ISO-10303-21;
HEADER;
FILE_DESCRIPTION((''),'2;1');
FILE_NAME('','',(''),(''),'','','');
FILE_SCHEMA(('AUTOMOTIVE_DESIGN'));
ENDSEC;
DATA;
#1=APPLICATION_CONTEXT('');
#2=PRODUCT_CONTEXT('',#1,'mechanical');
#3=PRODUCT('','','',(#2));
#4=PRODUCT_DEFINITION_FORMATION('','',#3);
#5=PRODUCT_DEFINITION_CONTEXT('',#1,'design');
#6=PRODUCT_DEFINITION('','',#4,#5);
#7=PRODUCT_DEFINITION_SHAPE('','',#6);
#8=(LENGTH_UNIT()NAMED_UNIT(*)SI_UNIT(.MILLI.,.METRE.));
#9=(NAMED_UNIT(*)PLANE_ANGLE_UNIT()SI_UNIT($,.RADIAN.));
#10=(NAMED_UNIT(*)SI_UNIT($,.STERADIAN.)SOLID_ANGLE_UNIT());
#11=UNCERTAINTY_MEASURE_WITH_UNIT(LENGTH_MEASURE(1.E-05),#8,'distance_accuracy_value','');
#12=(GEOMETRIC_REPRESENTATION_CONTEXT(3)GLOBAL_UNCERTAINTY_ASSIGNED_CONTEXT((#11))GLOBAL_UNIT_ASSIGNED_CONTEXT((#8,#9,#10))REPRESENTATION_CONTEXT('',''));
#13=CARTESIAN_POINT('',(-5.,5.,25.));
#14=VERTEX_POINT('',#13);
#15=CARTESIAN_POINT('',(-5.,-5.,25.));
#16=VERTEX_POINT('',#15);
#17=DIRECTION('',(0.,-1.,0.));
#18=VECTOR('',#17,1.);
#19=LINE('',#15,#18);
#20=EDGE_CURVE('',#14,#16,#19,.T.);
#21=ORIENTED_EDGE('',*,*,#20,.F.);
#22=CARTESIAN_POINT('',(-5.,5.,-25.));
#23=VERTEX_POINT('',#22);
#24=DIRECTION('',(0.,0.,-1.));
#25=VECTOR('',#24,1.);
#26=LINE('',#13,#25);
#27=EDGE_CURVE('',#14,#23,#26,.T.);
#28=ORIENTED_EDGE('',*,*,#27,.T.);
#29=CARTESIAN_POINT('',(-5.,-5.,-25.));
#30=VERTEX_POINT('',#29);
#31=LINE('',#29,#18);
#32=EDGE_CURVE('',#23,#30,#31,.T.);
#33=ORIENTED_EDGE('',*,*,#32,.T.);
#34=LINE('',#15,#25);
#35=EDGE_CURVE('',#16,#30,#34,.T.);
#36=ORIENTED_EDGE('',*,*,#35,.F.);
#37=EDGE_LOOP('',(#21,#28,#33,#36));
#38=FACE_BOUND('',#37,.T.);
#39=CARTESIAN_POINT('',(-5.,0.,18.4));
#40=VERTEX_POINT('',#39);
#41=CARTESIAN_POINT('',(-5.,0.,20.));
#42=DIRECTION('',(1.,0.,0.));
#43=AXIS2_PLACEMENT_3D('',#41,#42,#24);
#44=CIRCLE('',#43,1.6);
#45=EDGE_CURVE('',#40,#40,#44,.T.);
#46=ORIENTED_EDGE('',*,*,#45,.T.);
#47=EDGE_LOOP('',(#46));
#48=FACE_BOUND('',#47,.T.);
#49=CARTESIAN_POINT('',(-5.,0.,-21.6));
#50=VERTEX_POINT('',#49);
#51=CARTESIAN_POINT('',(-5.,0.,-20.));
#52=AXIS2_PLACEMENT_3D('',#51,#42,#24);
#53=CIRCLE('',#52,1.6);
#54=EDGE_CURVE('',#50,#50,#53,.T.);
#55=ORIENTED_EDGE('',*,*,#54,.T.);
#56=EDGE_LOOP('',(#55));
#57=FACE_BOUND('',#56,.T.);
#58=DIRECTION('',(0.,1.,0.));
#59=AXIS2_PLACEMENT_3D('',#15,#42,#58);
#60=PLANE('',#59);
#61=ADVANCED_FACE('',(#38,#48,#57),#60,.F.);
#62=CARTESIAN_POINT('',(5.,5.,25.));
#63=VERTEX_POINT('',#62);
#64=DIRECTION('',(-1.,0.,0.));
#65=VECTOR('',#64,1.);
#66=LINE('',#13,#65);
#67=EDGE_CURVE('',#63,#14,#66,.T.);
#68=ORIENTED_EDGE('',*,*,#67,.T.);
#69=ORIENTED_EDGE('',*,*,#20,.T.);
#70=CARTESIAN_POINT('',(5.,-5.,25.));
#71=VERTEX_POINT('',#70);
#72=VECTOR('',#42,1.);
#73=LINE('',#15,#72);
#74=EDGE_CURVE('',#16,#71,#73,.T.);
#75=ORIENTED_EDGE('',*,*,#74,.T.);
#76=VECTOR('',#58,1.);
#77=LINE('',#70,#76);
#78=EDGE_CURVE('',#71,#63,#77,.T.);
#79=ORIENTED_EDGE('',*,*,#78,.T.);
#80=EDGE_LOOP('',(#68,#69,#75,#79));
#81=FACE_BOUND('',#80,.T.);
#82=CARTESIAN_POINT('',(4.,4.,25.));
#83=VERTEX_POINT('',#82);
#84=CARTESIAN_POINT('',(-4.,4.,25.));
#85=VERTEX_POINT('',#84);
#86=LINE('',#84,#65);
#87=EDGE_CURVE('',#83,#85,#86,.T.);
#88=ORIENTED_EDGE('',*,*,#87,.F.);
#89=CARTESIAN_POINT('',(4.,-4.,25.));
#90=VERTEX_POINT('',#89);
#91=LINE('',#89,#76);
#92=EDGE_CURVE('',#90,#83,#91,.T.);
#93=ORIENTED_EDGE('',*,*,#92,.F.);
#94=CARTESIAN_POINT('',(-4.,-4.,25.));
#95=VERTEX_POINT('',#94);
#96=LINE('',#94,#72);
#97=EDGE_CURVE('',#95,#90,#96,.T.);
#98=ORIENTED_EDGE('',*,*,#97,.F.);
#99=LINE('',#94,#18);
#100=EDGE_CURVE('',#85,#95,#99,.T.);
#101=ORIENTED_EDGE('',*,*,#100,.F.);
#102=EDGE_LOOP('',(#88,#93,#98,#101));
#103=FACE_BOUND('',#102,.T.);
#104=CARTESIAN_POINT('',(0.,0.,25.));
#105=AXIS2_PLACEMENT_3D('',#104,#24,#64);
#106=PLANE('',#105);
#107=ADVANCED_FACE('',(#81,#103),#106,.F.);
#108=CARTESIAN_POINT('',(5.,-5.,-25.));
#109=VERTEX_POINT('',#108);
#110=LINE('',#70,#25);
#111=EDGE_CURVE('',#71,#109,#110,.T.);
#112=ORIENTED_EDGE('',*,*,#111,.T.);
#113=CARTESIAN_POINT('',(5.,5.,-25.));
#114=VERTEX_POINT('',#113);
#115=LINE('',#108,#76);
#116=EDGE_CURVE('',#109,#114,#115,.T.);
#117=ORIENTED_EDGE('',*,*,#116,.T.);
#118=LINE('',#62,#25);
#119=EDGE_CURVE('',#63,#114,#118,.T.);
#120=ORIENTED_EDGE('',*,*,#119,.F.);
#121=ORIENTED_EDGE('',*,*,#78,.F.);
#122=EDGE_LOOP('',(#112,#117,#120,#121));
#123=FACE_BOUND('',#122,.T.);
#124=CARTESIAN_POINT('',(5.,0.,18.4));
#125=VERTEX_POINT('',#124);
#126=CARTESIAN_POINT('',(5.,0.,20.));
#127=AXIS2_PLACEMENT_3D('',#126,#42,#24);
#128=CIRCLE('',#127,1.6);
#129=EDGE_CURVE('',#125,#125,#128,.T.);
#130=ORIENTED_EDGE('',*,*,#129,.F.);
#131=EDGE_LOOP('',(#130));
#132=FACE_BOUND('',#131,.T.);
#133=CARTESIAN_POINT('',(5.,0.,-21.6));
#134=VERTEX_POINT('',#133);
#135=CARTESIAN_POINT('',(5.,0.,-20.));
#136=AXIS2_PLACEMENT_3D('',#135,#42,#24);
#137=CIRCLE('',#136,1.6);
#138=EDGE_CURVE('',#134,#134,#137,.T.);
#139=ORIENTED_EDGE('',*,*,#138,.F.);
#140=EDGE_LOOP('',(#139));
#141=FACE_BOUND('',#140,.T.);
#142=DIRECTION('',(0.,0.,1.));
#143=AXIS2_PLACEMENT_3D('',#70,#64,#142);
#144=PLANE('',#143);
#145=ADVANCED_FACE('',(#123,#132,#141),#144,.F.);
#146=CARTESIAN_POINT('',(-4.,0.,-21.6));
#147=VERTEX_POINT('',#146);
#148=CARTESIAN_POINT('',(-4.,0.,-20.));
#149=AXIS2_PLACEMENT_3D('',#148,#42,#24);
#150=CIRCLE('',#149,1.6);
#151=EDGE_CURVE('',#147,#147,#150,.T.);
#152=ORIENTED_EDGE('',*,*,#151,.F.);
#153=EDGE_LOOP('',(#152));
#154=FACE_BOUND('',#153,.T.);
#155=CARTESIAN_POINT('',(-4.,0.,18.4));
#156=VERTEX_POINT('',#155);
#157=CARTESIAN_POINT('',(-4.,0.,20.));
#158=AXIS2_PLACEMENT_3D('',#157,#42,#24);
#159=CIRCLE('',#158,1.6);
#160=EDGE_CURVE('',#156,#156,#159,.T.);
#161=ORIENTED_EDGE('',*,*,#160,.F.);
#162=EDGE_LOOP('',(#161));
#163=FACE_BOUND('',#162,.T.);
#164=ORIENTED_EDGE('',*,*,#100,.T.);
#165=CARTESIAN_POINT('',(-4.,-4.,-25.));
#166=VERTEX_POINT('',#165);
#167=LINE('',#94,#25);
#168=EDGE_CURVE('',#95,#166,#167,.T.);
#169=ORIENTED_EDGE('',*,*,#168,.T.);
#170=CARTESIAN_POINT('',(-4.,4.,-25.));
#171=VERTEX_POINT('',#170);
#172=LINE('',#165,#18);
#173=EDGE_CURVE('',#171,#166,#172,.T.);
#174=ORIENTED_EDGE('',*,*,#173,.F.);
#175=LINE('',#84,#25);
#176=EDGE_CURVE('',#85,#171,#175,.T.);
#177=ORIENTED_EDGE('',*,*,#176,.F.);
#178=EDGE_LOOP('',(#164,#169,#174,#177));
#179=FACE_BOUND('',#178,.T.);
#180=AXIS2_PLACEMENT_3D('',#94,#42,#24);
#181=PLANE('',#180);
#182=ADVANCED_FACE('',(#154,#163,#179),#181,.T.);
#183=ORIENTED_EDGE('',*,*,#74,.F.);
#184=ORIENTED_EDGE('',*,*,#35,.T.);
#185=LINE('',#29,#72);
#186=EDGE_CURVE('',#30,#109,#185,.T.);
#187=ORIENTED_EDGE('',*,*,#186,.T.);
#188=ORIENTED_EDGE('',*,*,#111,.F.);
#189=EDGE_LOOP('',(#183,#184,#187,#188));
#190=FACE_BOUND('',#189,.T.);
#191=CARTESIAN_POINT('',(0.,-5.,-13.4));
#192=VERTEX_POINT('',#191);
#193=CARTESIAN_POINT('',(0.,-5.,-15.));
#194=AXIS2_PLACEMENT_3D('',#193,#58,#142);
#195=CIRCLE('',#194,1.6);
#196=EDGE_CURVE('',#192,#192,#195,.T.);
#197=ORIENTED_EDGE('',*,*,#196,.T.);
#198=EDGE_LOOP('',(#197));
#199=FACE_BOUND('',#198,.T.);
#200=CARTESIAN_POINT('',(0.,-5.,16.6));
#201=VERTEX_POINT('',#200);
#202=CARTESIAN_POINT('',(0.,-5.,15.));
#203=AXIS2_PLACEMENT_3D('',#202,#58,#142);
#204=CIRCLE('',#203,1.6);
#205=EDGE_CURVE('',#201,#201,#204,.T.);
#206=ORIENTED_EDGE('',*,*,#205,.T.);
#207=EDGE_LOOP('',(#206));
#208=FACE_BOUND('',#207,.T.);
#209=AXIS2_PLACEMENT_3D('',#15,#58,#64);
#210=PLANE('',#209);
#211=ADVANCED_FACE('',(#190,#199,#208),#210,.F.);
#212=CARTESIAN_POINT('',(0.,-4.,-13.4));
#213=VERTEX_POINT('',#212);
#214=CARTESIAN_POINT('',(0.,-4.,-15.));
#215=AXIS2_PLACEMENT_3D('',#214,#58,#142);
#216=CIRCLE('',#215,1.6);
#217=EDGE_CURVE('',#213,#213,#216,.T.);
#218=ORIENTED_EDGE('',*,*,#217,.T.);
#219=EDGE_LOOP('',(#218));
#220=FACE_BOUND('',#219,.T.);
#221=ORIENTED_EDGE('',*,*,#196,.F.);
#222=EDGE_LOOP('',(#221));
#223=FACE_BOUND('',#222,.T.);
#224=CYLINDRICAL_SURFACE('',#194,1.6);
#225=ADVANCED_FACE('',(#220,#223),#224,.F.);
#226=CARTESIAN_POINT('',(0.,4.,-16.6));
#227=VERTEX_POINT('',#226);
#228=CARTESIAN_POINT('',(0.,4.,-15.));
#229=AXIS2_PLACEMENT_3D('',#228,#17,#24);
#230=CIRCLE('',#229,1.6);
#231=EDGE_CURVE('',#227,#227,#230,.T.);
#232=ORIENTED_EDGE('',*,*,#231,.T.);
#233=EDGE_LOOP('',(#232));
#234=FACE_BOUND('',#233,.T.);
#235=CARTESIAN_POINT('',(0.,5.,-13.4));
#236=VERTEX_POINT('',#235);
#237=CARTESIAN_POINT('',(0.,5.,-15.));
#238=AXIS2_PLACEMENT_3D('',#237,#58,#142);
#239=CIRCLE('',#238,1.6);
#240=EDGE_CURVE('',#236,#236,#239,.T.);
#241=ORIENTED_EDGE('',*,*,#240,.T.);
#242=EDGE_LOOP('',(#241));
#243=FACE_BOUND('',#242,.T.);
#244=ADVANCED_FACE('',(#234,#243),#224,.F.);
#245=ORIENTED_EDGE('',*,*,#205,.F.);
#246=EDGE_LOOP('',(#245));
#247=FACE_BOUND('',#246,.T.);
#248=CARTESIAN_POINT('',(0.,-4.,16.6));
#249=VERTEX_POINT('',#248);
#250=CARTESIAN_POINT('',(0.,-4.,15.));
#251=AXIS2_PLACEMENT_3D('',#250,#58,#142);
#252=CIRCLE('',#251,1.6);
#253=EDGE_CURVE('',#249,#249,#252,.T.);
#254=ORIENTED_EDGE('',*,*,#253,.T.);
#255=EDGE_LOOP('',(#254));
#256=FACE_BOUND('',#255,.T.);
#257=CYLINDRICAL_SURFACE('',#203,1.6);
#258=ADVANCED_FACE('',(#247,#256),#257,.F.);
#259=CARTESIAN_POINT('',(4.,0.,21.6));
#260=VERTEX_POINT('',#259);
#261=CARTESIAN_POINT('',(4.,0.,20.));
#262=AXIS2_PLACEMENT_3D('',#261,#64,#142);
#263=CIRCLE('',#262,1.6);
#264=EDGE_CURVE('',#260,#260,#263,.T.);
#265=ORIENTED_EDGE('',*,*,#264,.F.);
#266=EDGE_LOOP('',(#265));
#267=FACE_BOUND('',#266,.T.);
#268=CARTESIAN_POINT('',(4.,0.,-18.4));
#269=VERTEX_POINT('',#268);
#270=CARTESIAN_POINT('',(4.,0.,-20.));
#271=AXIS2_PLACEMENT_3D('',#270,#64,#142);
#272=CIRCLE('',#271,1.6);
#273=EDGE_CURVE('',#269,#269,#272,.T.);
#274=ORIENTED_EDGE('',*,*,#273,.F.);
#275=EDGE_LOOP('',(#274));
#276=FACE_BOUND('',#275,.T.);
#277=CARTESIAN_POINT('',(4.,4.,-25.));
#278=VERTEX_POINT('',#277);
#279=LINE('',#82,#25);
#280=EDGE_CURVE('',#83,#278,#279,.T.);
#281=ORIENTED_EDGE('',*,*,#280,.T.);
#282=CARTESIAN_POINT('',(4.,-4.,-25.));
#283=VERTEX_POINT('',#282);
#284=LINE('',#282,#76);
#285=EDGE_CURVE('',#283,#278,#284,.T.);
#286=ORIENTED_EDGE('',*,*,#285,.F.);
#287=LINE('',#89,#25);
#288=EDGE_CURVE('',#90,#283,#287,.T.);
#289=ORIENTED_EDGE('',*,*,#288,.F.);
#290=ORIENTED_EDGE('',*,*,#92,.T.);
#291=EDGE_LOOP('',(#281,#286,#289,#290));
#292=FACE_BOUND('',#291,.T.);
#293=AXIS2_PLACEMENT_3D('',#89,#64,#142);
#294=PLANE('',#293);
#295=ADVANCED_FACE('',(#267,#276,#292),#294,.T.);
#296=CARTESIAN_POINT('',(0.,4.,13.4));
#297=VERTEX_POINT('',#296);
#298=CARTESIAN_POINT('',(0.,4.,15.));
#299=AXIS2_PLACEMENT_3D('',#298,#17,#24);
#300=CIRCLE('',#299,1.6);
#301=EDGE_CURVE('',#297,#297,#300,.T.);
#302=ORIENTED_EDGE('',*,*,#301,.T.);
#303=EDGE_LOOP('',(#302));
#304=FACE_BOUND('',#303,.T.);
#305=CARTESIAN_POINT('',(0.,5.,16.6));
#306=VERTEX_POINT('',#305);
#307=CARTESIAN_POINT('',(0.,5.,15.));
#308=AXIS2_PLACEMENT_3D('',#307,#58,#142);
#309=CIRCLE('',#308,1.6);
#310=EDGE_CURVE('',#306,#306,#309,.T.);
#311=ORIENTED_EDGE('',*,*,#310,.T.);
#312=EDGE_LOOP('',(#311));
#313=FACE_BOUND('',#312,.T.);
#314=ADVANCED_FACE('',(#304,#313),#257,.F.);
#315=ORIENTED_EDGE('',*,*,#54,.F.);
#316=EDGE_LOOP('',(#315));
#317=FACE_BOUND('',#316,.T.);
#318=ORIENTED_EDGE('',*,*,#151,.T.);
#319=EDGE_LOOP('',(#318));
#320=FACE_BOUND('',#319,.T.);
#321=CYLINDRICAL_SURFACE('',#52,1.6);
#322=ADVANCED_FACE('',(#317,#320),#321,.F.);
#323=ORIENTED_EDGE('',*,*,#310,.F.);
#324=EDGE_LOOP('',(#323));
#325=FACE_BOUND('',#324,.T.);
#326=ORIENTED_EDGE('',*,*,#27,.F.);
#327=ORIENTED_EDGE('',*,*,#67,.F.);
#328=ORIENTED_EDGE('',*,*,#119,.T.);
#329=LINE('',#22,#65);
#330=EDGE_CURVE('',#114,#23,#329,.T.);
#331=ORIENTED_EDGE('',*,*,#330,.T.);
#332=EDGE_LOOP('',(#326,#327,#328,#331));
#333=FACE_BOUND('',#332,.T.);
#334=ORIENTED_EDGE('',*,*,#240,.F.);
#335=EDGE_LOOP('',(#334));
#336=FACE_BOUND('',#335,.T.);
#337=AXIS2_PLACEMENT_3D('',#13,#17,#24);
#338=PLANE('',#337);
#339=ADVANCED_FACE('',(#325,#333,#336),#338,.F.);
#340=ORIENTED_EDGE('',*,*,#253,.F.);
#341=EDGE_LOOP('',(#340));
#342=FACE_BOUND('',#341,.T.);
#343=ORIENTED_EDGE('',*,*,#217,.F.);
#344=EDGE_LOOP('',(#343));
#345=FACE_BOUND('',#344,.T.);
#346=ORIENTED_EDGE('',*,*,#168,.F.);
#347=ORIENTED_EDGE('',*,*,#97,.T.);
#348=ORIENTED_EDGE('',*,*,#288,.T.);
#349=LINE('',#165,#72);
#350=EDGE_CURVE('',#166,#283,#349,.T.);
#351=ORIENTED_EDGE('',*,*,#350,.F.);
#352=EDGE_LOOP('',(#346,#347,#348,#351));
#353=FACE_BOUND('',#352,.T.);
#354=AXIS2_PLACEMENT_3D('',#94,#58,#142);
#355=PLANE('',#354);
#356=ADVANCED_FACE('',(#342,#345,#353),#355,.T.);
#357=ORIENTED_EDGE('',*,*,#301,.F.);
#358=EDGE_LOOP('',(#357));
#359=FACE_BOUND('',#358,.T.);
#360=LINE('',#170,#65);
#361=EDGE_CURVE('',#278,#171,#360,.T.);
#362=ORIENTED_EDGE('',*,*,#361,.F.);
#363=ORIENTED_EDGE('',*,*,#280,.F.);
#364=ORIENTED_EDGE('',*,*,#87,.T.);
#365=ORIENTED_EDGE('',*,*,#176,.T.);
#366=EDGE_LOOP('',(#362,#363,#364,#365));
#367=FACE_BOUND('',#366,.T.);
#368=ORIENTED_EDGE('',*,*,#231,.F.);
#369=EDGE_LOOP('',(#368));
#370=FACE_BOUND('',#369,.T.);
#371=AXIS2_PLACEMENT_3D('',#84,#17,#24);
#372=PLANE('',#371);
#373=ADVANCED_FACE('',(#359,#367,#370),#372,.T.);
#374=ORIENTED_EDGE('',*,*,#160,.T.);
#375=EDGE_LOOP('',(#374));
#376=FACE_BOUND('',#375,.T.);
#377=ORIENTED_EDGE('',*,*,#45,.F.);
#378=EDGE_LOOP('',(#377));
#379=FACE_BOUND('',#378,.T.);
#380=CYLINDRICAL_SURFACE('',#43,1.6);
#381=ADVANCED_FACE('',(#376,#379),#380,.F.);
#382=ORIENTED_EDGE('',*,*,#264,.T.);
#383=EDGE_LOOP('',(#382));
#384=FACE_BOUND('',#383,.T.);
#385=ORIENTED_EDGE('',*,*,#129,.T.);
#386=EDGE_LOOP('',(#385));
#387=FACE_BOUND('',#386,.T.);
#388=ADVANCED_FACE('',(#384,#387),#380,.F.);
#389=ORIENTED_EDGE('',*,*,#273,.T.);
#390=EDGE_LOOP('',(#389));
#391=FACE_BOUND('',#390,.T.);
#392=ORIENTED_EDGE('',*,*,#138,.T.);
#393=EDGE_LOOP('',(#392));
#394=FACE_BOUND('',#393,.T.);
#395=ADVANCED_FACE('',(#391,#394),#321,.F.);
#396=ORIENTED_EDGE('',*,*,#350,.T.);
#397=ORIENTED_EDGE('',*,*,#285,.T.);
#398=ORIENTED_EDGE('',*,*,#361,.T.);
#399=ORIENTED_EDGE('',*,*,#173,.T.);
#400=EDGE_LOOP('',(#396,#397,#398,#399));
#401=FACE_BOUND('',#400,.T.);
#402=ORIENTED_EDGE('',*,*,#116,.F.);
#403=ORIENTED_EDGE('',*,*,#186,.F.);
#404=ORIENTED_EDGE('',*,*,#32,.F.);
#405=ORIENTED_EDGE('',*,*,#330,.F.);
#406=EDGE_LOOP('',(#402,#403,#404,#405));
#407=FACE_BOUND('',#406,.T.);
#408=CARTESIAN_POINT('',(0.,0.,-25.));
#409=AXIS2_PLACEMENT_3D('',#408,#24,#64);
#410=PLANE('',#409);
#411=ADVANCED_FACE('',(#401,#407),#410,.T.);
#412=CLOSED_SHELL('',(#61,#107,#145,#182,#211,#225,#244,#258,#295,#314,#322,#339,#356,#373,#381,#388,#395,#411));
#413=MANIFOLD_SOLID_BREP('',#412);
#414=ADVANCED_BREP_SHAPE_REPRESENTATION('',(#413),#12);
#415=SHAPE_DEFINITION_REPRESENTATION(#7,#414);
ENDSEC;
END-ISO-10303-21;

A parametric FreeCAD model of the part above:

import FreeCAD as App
import Part
import Sketcher
Q = App.Units.Quantity


def add_polygon(sketch, points):
    """Adds a closed chain of lines whose ends are joined by coincident constraints."""
    first, n = sketch.GeometryCount, len(points)
    for a, b in zip(points, points[1:] + points[:1]):
        sketch.addGeometry(Part.LineSegment(App.Vector(*a, 0), App.Vector(*b, 0)), False)
    for i in range(n):
        sketch.addConstraint(Sketcher.Constraint("Coincident", first + i, 2, first + (i + 1) % n, 1))

doc = App.newDocument("Part")
params = doc.addObject("Spreadsheet::Sheet", "Params")
for row, (alias, value) in enumerate([
    ("sketch1_width", "10 mm"),
    ("sketch1_width2", "8 mm"),
    ("pad1_length", "50 mm"),
    ("sketch2_diameter", "3.2 mm"),
    ("sketch3_diameter", "3.2 mm"),
], start=1):
    params.set(f"A{row}", alias)
    params.set(f"B{row}", "=" + value)
    params.setAlias(f"B{row}", alias)

body = doc.addObject("PartDesign::Body", "Body")

sketch1 = body.newObject("Sketcher::SketchObject", "Sketch")
sketch1.AttachmentSupport = (doc.getObject("XY_Plane"), [""])
sketch1.MapMode = "FlatFace"
add_polygon(sketch1, [(-5, 5), (-5, -5), (5, -5), (5, 5)])
add_polygon(sketch1, [(4, -4), (-4, -4), (-4, 4), (4, 4)])
sketch1.addConstraint(Sketcher.Constraint("Vertical", 0))
sketch1.addConstraint(Sketcher.Constraint("Horizontal", 1))
sketch1.addConstraint(Sketcher.Constraint("Vertical", 2))
sketch1.addConstraint(Sketcher.Constraint("Horizontal", 3))
sketch1.addConstraint(Sketcher.Constraint("Horizontal", 4))
sketch1.addConstraint(Sketcher.Constraint("Vertical", 5))
sketch1.addConstraint(Sketcher.Constraint("Horizontal", 6))
sketch1.addConstraint(Sketcher.Constraint("Vertical", 7))
sketch1.addConstraint(Sketcher.Constraint("Symmetric", 0, 2, 2, 2, -1, 1))
sketch1.addConstraint(Sketcher.Constraint("Symmetric", 4, 2, 6, 2, -1, 1))
sketch1.addConstraint(Sketcher.Constraint("Equal", 3, 0))
sketch1.addConstraint(Sketcher.Constraint("Equal", 6, 5))
sketch1.addConstraint(Sketcher.Constraint("DistanceX", 1, 1, 1, 2, Q("10 mm")))
sketch1.addConstraint(Sketcher.Constraint("DistanceX", 4, 2, 4, 1, Q("8 mm")))
sketch1.setExpression("Constraints[20]", "Params.sketch1_width")
sketch1.setExpression("Constraints[21]", "Params.sketch1_width2")
pad1 = body.newObject("PartDesign::Pad", "Pad")
pad1.Profile = sketch1
pad1.setExpression("Length", "Params.pad1_length")
pad1.Midplane = True

sketch2 = body.newObject("Sketcher::SketchObject", "Sketch001")
sketch2.AttachmentSupport = (doc.getObject("YZ_Plane"), [""])
sketch2.MapMode = "FlatFace"
sketch2.AttachmentOffset = App.Placement(App.Vector(0, 0, 5), App.Rotation())
sketch2.addGeometry(Part.Circle(App.Vector(0, 20, 0), App.Vector(0, 0, 1), 1.6), False)
sketch2.addGeometry(Part.Circle(App.Vector(0, -20, 0), App.Vector(0, 0, 1), 1.6), False)
sketch2.addConstraint(Sketcher.Constraint("Equal", 0, 1))
sketch2.addConstraint(Sketcher.Constraint("Symmetric", 0, 3, 1, 3, -1, 1))
sketch2.addConstraint(Sketcher.Constraint("PointOnObject", 0, 3, -2))
sketch2.addConstraint(Sketcher.Constraint("Diameter", 0, Q("3.2 mm")))
sketch2.addConstraint(Sketcher.Constraint("DistanceY", -1, 1, 0, 3, Q("20 mm")))
sketch2.setExpression("Constraints[3]", "Params.sketch2_diameter")
pocket1 = body.newObject("PartDesign::Pocket", "Pocket")
pocket1.Profile = sketch2
pocket1.Type = "ThroughAll"

sketch3 = body.newObject("Sketcher::SketchObject", "Sketch002")
sketch3.AttachmentSupport = (doc.getObject("XZ_Plane"), [""])
sketch3.MapMode = "FlatFace"
sketch3.AttachmentOffset = App.Placement(App.Vector(0, 0, -5), App.Rotation())
sketch3.addGeometry(Part.Circle(App.Vector(0, 15, 0), App.Vector(0, 0, 1), 1.6), False)
sketch3.addGeometry(Part.Circle(App.Vector(0, -15, 0), App.Vector(0, 0, 1), 1.6), False)
sketch3.addConstraint(Sketcher.Constraint("Equal", 0, 1))
sketch3.addConstraint(Sketcher.Constraint("Symmetric", 0, 3, 1, 3, -1, 1))
sketch3.addConstraint(Sketcher.Constraint("PointOnObject", 0, 3, -2))
sketch3.addConstraint(Sketcher.Constraint("Diameter", 0, Q("3.2 mm")))
sketch3.addConstraint(Sketcher.Constraint("DistanceY", -1, 1, 0, 3, Q("15 mm")))
sketch3.setExpression("Constraints[3]", "Params.sketch3_diameter")
pocket2 = body.newObject("PartDesign::Pocket", "Pocket001")
pocket2.Profile = sketch3
pocket2.Type = "ThroughAll"
pocket2.Reversed = True

doc.recompute()
